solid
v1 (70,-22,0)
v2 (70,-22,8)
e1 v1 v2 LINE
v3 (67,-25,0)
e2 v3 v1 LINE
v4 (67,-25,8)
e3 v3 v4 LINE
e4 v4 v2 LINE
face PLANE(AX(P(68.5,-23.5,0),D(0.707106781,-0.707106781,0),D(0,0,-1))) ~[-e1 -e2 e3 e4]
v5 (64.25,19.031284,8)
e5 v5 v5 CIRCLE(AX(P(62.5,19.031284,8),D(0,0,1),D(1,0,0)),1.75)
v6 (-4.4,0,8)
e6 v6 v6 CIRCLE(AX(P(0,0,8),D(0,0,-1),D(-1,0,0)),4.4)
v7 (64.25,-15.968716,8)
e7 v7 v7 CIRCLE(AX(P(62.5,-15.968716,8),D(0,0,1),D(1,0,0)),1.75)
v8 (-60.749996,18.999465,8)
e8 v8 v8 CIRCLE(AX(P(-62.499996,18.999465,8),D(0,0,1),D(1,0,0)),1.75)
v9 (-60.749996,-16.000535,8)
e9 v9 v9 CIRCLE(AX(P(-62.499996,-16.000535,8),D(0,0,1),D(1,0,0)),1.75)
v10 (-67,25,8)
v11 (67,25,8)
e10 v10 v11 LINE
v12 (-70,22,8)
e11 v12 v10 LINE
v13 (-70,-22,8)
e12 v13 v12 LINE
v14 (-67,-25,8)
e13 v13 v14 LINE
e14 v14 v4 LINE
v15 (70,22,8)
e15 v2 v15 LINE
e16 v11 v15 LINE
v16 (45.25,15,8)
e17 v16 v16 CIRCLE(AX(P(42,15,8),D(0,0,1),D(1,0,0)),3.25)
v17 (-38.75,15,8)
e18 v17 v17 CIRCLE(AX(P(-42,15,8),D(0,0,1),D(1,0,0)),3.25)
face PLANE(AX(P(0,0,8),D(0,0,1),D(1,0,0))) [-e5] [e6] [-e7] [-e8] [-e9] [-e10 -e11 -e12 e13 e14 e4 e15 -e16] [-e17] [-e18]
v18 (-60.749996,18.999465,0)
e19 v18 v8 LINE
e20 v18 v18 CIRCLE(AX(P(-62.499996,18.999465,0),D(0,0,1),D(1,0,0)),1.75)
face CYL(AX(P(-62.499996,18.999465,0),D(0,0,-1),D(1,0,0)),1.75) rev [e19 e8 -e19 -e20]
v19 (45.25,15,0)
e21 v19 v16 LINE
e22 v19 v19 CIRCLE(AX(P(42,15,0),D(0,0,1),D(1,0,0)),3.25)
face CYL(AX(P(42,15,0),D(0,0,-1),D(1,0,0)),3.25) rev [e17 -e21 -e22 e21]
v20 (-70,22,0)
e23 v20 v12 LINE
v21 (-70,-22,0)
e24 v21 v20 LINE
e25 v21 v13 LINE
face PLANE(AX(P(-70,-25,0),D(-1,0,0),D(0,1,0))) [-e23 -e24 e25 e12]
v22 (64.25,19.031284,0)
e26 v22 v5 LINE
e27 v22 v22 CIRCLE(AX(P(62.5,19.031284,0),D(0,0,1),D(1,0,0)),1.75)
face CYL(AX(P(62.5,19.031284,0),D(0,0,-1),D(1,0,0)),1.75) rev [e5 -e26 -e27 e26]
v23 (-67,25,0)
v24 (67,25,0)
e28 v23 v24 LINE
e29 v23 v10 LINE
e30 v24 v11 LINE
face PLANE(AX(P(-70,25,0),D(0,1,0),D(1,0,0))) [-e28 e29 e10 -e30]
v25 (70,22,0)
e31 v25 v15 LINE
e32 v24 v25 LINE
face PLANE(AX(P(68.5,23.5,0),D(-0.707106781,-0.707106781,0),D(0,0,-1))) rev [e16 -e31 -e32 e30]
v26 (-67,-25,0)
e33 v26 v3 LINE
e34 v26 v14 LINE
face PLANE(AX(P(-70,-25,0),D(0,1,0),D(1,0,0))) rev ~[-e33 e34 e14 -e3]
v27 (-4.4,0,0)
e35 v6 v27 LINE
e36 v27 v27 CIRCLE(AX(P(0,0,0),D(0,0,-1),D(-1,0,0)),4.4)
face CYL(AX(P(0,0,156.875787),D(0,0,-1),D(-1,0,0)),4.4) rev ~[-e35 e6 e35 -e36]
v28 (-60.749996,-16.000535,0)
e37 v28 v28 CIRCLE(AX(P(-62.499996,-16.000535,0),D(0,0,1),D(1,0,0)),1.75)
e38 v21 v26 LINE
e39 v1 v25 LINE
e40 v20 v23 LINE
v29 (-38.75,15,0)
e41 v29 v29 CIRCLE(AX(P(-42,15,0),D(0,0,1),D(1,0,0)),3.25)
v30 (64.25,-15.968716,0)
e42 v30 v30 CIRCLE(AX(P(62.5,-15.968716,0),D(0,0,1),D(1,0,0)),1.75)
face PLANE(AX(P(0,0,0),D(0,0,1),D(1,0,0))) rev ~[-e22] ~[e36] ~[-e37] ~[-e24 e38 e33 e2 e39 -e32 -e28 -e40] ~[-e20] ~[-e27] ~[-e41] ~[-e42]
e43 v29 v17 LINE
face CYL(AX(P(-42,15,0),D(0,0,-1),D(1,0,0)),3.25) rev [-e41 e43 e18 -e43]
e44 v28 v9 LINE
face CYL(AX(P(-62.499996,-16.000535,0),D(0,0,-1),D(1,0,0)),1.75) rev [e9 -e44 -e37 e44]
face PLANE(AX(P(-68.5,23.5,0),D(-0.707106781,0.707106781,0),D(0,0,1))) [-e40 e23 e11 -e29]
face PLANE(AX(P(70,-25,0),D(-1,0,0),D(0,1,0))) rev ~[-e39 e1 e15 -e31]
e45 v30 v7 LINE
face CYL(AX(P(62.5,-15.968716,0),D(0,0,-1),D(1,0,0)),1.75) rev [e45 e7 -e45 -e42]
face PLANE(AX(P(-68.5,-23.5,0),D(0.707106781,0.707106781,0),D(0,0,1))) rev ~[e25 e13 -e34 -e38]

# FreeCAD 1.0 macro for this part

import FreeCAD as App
import Part
import Sketcher

V = App.Vector


def edges_at(feature, points):
    """Names of the edges that pass closest to the given points."""
    edges = feature.Shape.Edges
    near = lambda p: min(range(len(edges)), key=lambda i: edges[i].distToShape(Part.Vertex(*p))[0])
    return sorted({f"Edge{near(p) + 1}" for p in points})


def add_polygon(sketch, points):
    """Adds a closed chain of lines whose ends are joined by coincident constraints."""
    first, n = sketch.GeometryCount, len(points)
    for a, b in zip(points, points[1:] + points[:1]):
        sketch.addGeometry(Part.LineSegment(App.Vector(*a, 0), App.Vector(*b, 0)), False)
    for i in range(n):
        sketch.addConstraint(Sketcher.Constraint("Coincident", first + i, 2, first + (i + 1) % n, 1))

doc = App.newDocument("Part")
params = doc.addObject("Spreadsheet::Sheet", "Params")
for row, (alias, value) in enumerate([
    ("sketch1_diameter", "5 mm"),
    ("sketch1_diameter2", "3.5 mm"),
    ("sketch1_diameter3", "6.5 mm"),
    ("sketch1_width", "140 mm"),
    ("sketch1_height", "50 mm"),
    ("pad1_length", "8 mm"),
    ("chamfer_size", "3 mm"),
    ("sketch2_diameter", "8.8 mm"),
    ("hole_diameter", "8.8 mm"),
], start=1):
    params.set(f"A{row}", alias)
    params.set(f"B{row}", "=" + value)
    params.setAlias(f"B{row}", alias)

body = doc.addObject("PartDesign::Body", "Body")

# Sketch on XY plane
sketch1 = body.newObject("Sketcher::SketchObject", "Sketch")
sketch1.AttachmentSupport = (doc.getObject("XY_Plane"), [""])
sketch1.MapMode = "FlatFace"
add_polygon(sketch1, [(-70, 25), (-70, -25), (70, -25), (70, 25)])  # lines 0-3
sketch1.addGeometry(Part.Circle(V(-62.499996, -16.000535, 0), V(0, 0, 1), 1.75), False)  # 4
sketch1.addGeometry(Part.Circle(V(0, 0, 0), V(0, 0, 1), 2.5), False)  # 5
sketch1.addGeometry(Part.Circle(V(62.5, -15.968716, 0), V(0, 0, 1), 1.75), False)  # 6
sketch1.addGeometry(Part.Circle(V(-42, 15, 0), V(0, 0, 1), 3.25), False)  # 7
sketch1.addGeometry(Part.Circle(V(-62.499996, 18.999465, 0), V(0, 0, 1), 1.75), False)  # 8
sketch1.addGeometry(Part.Circle(V(42, 15, 0), V(0, 0, 1), 3.25), False)  # 9
sketch1.addGeometry(Part.Circle(V(62.5, 19.031284, 0), V(0, 0, 1), 1.75), False)  # 10
sketch1.addConstraint([
    Sketcher.Constraint("Vertical", 0),
    Sketcher.Constraint("Horizontal", 1),
    Sketcher.Constraint("Vertical", 2),
    Sketcher.Constraint("Horizontal", 3),
    Sketcher.Constraint("Coincident", 5, 3, -1, 1),
    Sketcher.Constraint("Equal", 4, 6),
    Sketcher.Constraint("Equal", 6, 8),
    Sketcher.Constraint("Equal", 7, 9),
    Sketcher.Constraint("Equal", 8, 10),
    Sketcher.Constraint("Symmetric", 0, 2, 2, 2, -1, 1),
    Sketcher.Constraint("Symmetric", 7, 3, 9, 3, -2),
    Sketcher.Constraint("Vertical", 4, 3, 8, 3),
    Sketcher.Constraint("Vertical", 6, 3, 10, 3),
    Sketcher.Constraint("Diameter", 5, 5.0),
    Sketcher.Constraint("Diameter", 4, 3.5),
    Sketcher.Constraint("Diameter", 7, 6.5),
    Sketcher.Constraint("DistanceX", 1, 1, 1, 2, 140.0),
    Sketcher.Constraint("DistanceY", 0, 2, 0, 1, 50.0),
    Sketcher.Constraint("DistanceX", 7, 3, -1, 1, 42.0),
    Sketcher.Constraint("DistanceY", -1, 1, 7, 3, 15.0),
    Sketcher.Constraint("DistanceY", 4, 3, 8, 3, 35.0),
    Sketcher.Constraint("DistanceY", 6, 3, 10, 3, 35.0),
    Sketcher.Constraint("DistanceX", -1, 1, 6, 3, 62.5),
    Sketcher.Constraint("DistanceY", 4, 3, 6, 3, 0.031819),
    Sketcher.Constraint("DistanceX", 4, 3, -1, 1, 62.499996),
    Sketcher.Constraint("DistanceY", 4, 3, -1, 1, 16.000535),
])
sketch1.setExpression("Constraints[17]", "Params.sketch1_diameter")
sketch1.setExpression("Constraints[18]", "Params.sketch1_diameter2")
sketch1.setExpression("Constraints[19]", "Params.sketch1_diameter3")
sketch1.setExpression("Constraints[20]", "Params.sketch1_width")
sketch1.setExpression("Constraints[21]", "Params.sketch1_height")
pad1 = body.newObject("PartDesign::Pad", "Pad")
pad1.Profile = sketch1
pad1.setExpression("Length", "Params.pad1_length")
doc.recompute()

chamfer = body.newObject("PartDesign::Chamfer", "Chamfer")
chamfer.Base = (pad1, edges_at(pad1, [
    (-70, -25, 4),
    (70, -25, 4),
    (70, 25, 4),
    (-70, 25, 4),
]))
chamfer.setExpression("Size", "Params.chamfer_size")

# Sketch on XY plane
sketch2 = body.newObject("Sketcher::SketchObject", "Sketch001")
sketch2.AttachmentSupport = (doc.getObject("XY_Plane"), [""])
sketch2.MapMode = "FlatFace"
sketch2.AttachmentOffset = App.Placement(V(0, 0, 8), App.Rotation())
sketch2.addGeometry(Part.Circle(V(0, 0, 0), V(0, 0, 1), 4.4), False)
sketch2.addConstraint([
    Sketcher.Constraint("Coincident", 0, 3, -1, 1),
    Sketcher.Constraint("Diameter", 0, 8.8),
])
sketch2.setExpression("Constraints[1]", "Params.sketch2_diameter")
doc.recompute()
hole = body.newObject("PartDesign::Hole", "Hole")
hole.Profile = sketch2
hole.ThreadType = "None"
hole.setExpression("Diameter", "Params.hole_diameter")
hole.DepthType = "ThroughAll"

doc.recompute()
